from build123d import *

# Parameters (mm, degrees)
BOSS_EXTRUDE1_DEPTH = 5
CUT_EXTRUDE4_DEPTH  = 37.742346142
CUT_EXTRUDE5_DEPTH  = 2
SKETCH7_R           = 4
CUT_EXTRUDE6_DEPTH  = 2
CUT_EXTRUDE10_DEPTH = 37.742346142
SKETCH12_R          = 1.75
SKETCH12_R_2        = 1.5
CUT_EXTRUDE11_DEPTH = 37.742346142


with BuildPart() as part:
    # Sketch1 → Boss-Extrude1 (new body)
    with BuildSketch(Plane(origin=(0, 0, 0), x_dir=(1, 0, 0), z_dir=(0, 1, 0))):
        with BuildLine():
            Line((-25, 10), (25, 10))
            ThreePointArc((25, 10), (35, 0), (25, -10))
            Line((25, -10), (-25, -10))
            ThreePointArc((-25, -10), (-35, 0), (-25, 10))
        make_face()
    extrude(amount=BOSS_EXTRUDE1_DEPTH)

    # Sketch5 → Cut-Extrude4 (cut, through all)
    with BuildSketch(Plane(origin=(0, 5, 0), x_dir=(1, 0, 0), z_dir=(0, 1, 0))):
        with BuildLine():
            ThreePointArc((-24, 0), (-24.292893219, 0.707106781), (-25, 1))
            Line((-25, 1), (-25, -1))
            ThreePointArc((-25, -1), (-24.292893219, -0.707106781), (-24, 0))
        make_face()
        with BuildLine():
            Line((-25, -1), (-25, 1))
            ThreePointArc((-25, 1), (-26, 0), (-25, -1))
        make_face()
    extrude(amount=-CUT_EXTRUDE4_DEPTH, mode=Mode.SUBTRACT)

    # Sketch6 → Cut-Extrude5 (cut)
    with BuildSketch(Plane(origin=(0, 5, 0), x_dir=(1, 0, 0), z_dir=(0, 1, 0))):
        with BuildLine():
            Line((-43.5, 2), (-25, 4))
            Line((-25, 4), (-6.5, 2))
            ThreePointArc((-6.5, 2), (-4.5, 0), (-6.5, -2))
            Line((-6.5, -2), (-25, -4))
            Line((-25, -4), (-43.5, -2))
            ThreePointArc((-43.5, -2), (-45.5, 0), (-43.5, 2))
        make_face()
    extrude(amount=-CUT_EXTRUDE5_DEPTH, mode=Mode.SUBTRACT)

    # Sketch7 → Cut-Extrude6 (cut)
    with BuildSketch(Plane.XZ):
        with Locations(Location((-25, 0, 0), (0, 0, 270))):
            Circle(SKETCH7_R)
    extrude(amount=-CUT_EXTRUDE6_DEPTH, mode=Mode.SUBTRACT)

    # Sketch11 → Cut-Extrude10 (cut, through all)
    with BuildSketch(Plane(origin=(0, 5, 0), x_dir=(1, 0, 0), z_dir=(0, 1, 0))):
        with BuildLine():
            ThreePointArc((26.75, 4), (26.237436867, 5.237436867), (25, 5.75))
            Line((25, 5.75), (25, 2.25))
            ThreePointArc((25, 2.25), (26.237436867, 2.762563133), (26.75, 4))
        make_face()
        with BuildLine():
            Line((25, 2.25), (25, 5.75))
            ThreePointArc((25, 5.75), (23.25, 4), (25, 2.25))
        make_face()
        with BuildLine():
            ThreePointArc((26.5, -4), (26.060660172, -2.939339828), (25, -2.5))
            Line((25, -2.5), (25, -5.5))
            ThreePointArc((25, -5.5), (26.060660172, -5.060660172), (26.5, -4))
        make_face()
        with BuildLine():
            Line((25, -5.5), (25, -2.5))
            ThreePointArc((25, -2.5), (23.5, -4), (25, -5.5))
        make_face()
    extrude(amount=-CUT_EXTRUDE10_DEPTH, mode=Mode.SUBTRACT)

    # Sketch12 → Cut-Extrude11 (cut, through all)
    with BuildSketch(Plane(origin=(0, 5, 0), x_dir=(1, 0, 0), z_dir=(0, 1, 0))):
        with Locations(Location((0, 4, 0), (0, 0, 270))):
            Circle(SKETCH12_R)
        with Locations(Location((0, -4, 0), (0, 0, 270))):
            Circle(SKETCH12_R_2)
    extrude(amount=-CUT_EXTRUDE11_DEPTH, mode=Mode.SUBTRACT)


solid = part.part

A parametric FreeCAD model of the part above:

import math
import FreeCAD as App
import Part
import Sketcher
from FreeCAD import Vector
Q = App.Units.Quantity

doc = App.newDocument("Part")
params = doc.addObject("Spreadsheet::Sheet", "Params")
for row, (alias, value) in enumerate([
    ("sketch1_radius", "10 mm"),
    ("sketch1_width", "50 mm"),
    ("pad1_length", "5 mm"),
    ("sketch2_radius", "1 mm"),
    ("sketch3_radius", "2 mm"),
    ("pocket2_length", "2 mm"),
    ("sketch4_diameter", "8 mm"),
    ("pocket3_length", "2 mm"),
    ("sketch5_radius", "1.5 mm"),
    ("sketch5_radius2", "1.75 mm"),
    ("sketch6_diameter", "3 mm"),
    ("sketch6_diameter2", "3.5 mm"),
], start=1):
    params.set(f"A{row}", alias)
    params.set(f"B{row}", "=" + value)
    params.setAlias(f"B{row}", alias)

body = doc.addObject("PartDesign::Body", "Body")

sketch1 = doc.addObject("Sketcher::SketchObject", "Sketch")
body.addObject(sketch1)
sketch1.AttachmentSupport = (doc.XZ_Plane, [""])
sketch1.MapMode = "FlatFace"
sketch1.addGeometry(Part.LineSegment(Vector(25, -10, 0), Vector(-25, -10, 0)), False)
sketch1.addGeometry(Part.ArcOfCircle(Part.Circle(Vector(-25, 0, 0), Vector(0, 0, 1), 10), math.radians(90), math.radians(270)), False)
sketch1.addGeometry(Part.LineSegment(Vector(-25, 10, 0), Vector(25, 10, 0)), False)
sketch1.addGeometry(Part.ArcOfCircle(Part.Circle(Vector(25, 0, 0), Vector(0, 0, 1), 10), math.radians(-90), math.radians(90)), False)
sketch1.addConstraint(Sketcher.Constraint("Tangent", 0, 2, 1, 2))
sketch1.addConstraint(Sketcher.Constraint("Tangent", 1, 1, 2, 1))
sketch1.addConstraint(Sketcher.Constraint("Tangent", 2, 2, 3, 2))
sketch1.addConstraint(Sketcher.Constraint("Tangent", 3, 1, 0, 1))
sketch1.addConstraint(Sketcher.Constraint("Horizontal", 0))
sketch1.addConstraint(Sketcher.Constraint("Horizontal", 2))
sketch1.addConstraint(Sketcher.Constraint("Symmetric", 1, 3, 3, 3, -1, 1))
sketch1.addConstraint(Sketcher.Constraint("Radius", 1, Q("10 mm")))
sketch1.addConstraint(Sketcher.Constraint("DistanceX", 0, 2, 0, 1, Q("50 mm")))
sketch1.setExpression("Constraints[7]", "Params.sketch1_radius")
sketch1.setExpression("Constraints[8]", "Params.sketch1_width")
pad1 = doc.addObject("PartDesign::Pad", "Pad")
body.addObject(pad1)
pad1.Profile = sketch1
pad1.setExpression("Length", "Params.pad1_length")
pad1.Reversed = True

sketch2 = doc.addObject("Sketcher::SketchObject", "Sketch001")
body.addObject(sketch2)
sketch2.AttachmentSupport = (doc.XZ_Plane, [""])
sketch2.MapMode = "FlatFace"
sketch2.AttachmentOffset = App.Placement(Vector(0, 0, -5), App.Rotation())
sketch2.addGeometry(Part.ArcOfCircle(Part.Circle(Vector(-25, 0, 0), Vector(0, 0, 1), 1), math.radians(-90), math.radians(0)), False)
sketch2.addGeometry(Part.ArcOfCircle(Part.Circle(Vector(-25, 0, 0), Vector(0, 0, 1), 1), math.radians(90), math.radians(270)), False)
sketch2.addGeometry(Part.ArcOfCircle(Part.Circle(Vector(-25, 0, 0), Vector(0, 0, 1), 1), math.radians(0), math.radians(90)), False)
sketch2.addConstraint(Sketcher.Constraint("Tangent", 0, 1, 1, 2))
sketch2.addConstraint(Sketcher.Constraint("Tangent", 1, 1, 2, 2))
sketch2.addConstraint(Sketcher.Constraint("Tangent", 2, 1, 0, 2))
sketch2.addConstraint(Sketcher.Constraint("Symmetric", 0, 1, 1, 1, -1))
sketch2.addConstraint(Sketcher.Constraint("PointOnObject", 2, 1, -1))
sketch2.addConstraint(Sketcher.Constraint("Vertical", 2, 3, 0, 1))
sketch2.addConstraint(Sketcher.Constraint("Radius", 0, Q("1 mm")))
sketch2.addConstraint(Sketcher.Constraint("DistanceX", 0, 3, -1, 1, Q("25 mm")))
sketch2.setExpression("Constraints[6]", "Params.sketch2_radius")
pocket1 = doc.addObject("PartDesign::Pocket", "Pocket")
body.addObject(pocket1)
pocket1.Profile = sketch2
pocket1.Type = "ThroughAll"
pocket1.Reversed = True

sketch3 = doc.addObject("Sketcher::SketchObject", "Sketch002")
body.addObject(sketch3)
sketch3.AttachmentSupport = (doc.XZ_Plane, [""])
sketch3.MapMode = "FlatFace"
sketch3.AttachmentOffset = App.Placement(Vector(0, 0, -5), App.Rotation())
sketch3.addGeometry(Part.LineSegment(Vector(-25, -4, 0), Vector(-43.5, -2, 0)), False)
sketch3.addGeometry(Part.ArcOfCircle(Part.Circle(Vector(-43.5, 0, 0), Vector(0, 0, 1), 2), math.radians(90), math.radians(270)), False)
sketch3.addGeometry(Part.LineSegment(Vector(-43.5, 2, 0), Vector(-25, 4, 0)), False)
sketch3.addGeometry(Part.LineSegment(Vector(-25, 4, 0), Vector(-6.5, 2, 0)), False)
sketch3.addGeometry(Part.ArcOfCircle(Part.Circle(Vector(-6.5, 0, 0), Vector(0, 0, 1), 2), math.radians(-90), math.radians(90)), False)
sketch3.addGeometry(Part.LineSegment(Vector(-6.5, -2, 0), Vector(-25, -4, 0)), False)
sketch3.addConstraint(Sketcher.Constraint("Coincident", 0, 2, 1, 2))
sketch3.addConstraint(Sketcher.Constraint("Coincident", 1, 1, 2, 1))
sketch3.addConstraint(Sketcher.Constraint("Coincident", 2, 2, 3, 1))
sketch3.addConstraint(Sketcher.Constraint("Coincident", 3, 2, 4, 2))
sketch3.addConstraint(Sketcher.Constraint("Coincident", 4, 1, 5, 1))
sketch3.addConstraint(Sketcher.Constraint("Coincident", 5, 2, 0, 1))
sketch3.addConstraint(Sketcher.Constraint("Equal", 1, 4))
sketch3.addConstraint(Sketcher.Constraint("Symmetric", 0, 2, 1, 1, -1))
sketch3.addConstraint(Sketcher.Constraint("Symmetric", 3, 2, 4, 1, -1))
sketch3.addConstraint(Sketcher.Constraint("Symmetric", 2, 2, 5, 2, -1))
sketch3.addConstraint(Sketcher.Constraint("Parallel", 0, 3))
sketch3.addConstraint(Sketcher.Constraint("Vertical", 1, 3, 0, 2))
sketch3.addConstraint(Sketcher.Constraint("Vertical", 4, 3, 3, 2))
sketch3.addConstraint(Sketcher.Constraint("Radius", 1, Q("2 mm")))
sketch3.addConstraint(Sketcher.Constraint("DistanceX", 2, 2, -1, 1, Q("25 mm")))
sketch3.addConstraint(Sketcher.Constraint("DistanceY", -1, 1, 2, 2, Q("4 mm")))
sketch3.addConstraint(Sketcher.Constraint("DistanceX", 1, 3, 4, 3, Q("37 mm")))
sketch3.setExpression("Constraints[13]", "Params.sketch3_radius")
pocket2 = doc.addObject("PartDesign::Pocket", "Pocket001")
body.addObject(pocket2)
pocket2.Profile = sketch3
pocket2.setExpression("Length", "Params.pocket2_length")
pocket2.Reversed = True

sketch4 = doc.addObject("Sketcher::SketchObject", "Sketch003")
body.addObject(sketch4)
sketch4.AttachmentSupport = (doc.XZ_Plane, [""])
sketch4.MapMode = "FlatFace"
sketch4.addGeometry(Part.Circle(Vector(-25, 0, 0), Vector(0, 0, 1), 4), False)
sketch4.addConstraint(Sketcher.Constraint("PointOnObject", 0, 3, -1))
sketch4.addConstraint(Sketcher.Constraint("Diameter", 0, Q("8 mm")))
sketch4.addConstraint(Sketcher.Constraint("DistanceX", 0, 3, -1, 1, Q("25 mm")))
sketch4.setExpression("Constraints[1]", "Params.sketch4_diameter")
pocket3 = doc.addObject("PartDesign::Pocket", "Pocket002")
body.addObject(pocket3)
pocket3.Profile = sketch4
pocket3.setExpression("Length", "Params.pocket3_length")

sketch5 = doc.addObject("Sketcher::SketchObject", "Sketch004")
body.addObject(sketch5)
sketch5.AttachmentSupport = (doc.XZ_Plane, [""])
sketch5.MapMode = "FlatFace"
sketch5.AttachmentOffset = App.Placement(Vector(0, 0, -5), App.Rotation())
sketch5.addGeometry(Part.ArcOfCircle(Part.Circle(Vector(25, -4, 0), Vector(0, 0, 1), 1.8), math.radians(-90), math.radians(0)), False)
sketch5.addGeometry(Part.ArcOfCircle(Part.Circle(Vector(25, -4, 0), Vector(0, 0, 1), 1.8), math.radians(90), math.radians(270)), False)
sketch5.addGeometry(Part.ArcOfCircle(Part.Circle(Vector(25, -4, 0), Vector(0, 0, 1), 1.8), math.radians(0), math.radians(90)), False)
sketch5.addGeometry(Part.ArcOfCircle(Part.Circle(Vector(25, 4, 0), Vector(0, 0, 1), 1.5), math.radians(-90), math.radians(0)), False)
sketch5.addGeometry(Part.ArcOfCircle(Part.Circle(Vector(25, 4, 0), Vector(0, 0, 1), 1.5), math.radians(90), math.radians(270)), False)
sketch5.addGeometry(Part.ArcOfCircle(Part.Circle(Vector(25, 4, 0), Vector(0, 0, 1), 1.5), math.radians(0), math.radians(90)), False)
sketch5.addConstraint(Sketcher.Constraint("Tangent", 0, 1, 1, 2))
sketch5.addConstraint(Sketcher.Constraint("Tangent", 1, 1, 2, 2))
sketch5.addConstraint(Sketcher.Constraint("Tangent", 2, 1, 0, 2))
sketch5.addConstraint(Sketcher.Constraint("Tangent", 3, 1, 4, 2))
sketch5.addConstraint(Sketcher.Constraint("Tangent", 4, 1, 5, 2))
sketch5.addConstraint(Sketcher.Constraint("Tangent", 5, 1, 3, 2))
sketch5.addConstraint(Sketcher.Constraint("Symmetric", 0, 3, 3, 3, -1))
sketch5.addConstraint(Sketcher.Constraint("Horizontal", 1, 3, 2, 1))
sketch5.addConstraint(Sketcher.Constraint("Horizontal", 4, 3, 5, 1))
sketch5.addConstraint(Sketcher.Constraint("Vertical", 5, 3, 0, 1))
sketch5.addConstraint(Sketcher.Constraint("Vertical", 0, 1, 1, 1))
sketch5.addConstraint(Sketcher.Constraint("Vertical", 1, 1, 3, 1))
sketch5.addConstraint(Sketcher.Constraint("Vertical", 3, 1, 4, 1))
sketch5.addConstraint(Sketcher.Constraint("Radius", 3, Q("1.5 mm")))
sketch5.addConstraint(Sketcher.Constraint("Radius", 0, Q("1.75 mm")))
sketch5.addConstraint(Sketcher.Constraint("DistanceX", -1, 1, 0, 3, Q("25 mm")))
sketch5.addConstraint(Sketcher.Constraint("DistanceY", 0, 3, -1, 1, Q("4 mm")))
sketch5.setExpression("Constraints[13]", "Params.sketch5_radius")
sketch5.setExpression("Constraints[14]", "Params.sketch5_radius2")
pocket4 = doc.addObject("PartDesign::Pocket", "Pocket003")
body.addObject(pocket4)
pocket4.Profile = sketch5
pocket4.Type = "ThroughAll"
pocket4.Reversed = True

sketch6 = doc.addObject("Sketcher::SketchObject", "Sketch005")
body.addObject(sketch6)
sketch6.AttachmentSupport = (doc.XZ_Plane, [""])
sketch6.MapMode = "FlatFace"
sketch6.AttachmentOffset = App.Placement(Vector(0, 0, -5), App.Rotation())
sketch6.addGeometry(Part.Circle(Vector(0, -4, 0), Vector(0, 0, 1), 1.8), False)
sketch6.addGeometry(Part.Circle(Vector(0, 4, 0), Vector(0, 0, 1), 1.5), False)
sketch6.addConstraint(Sketcher.Constraint("Symmetric", 0, 3, 1, 3, -1, 1))
sketch6.addConstraint(Sketcher.Constraint("PointOnObject", 0, 3, -2))
sketch6.addConstraint(Sketcher.Constraint("Diameter", 1, Q("3 mm")))
sketch6.addConstraint(Sketcher.Constraint("Diameter", 0, Q("3.5 mm")))
sketch6.addConstraint(Sketcher.Constraint("DistanceY", 0, 3, -1, 1, Q("4 mm")))
sketch6.setExpression("Constraints[2]", "Params.sketch6_diameter")
sketch6.setExpression("Constraints[3]", "Params.sketch6_diameter2")
pocket5 = doc.addObject("PartDesign::Pocket", "Pocket004")
body.addObject(pocket5)
pocket5.Profile = sketch6
pocket5.Type = "ThroughAll"
pocket5.Reversed = True

doc.recompute()
